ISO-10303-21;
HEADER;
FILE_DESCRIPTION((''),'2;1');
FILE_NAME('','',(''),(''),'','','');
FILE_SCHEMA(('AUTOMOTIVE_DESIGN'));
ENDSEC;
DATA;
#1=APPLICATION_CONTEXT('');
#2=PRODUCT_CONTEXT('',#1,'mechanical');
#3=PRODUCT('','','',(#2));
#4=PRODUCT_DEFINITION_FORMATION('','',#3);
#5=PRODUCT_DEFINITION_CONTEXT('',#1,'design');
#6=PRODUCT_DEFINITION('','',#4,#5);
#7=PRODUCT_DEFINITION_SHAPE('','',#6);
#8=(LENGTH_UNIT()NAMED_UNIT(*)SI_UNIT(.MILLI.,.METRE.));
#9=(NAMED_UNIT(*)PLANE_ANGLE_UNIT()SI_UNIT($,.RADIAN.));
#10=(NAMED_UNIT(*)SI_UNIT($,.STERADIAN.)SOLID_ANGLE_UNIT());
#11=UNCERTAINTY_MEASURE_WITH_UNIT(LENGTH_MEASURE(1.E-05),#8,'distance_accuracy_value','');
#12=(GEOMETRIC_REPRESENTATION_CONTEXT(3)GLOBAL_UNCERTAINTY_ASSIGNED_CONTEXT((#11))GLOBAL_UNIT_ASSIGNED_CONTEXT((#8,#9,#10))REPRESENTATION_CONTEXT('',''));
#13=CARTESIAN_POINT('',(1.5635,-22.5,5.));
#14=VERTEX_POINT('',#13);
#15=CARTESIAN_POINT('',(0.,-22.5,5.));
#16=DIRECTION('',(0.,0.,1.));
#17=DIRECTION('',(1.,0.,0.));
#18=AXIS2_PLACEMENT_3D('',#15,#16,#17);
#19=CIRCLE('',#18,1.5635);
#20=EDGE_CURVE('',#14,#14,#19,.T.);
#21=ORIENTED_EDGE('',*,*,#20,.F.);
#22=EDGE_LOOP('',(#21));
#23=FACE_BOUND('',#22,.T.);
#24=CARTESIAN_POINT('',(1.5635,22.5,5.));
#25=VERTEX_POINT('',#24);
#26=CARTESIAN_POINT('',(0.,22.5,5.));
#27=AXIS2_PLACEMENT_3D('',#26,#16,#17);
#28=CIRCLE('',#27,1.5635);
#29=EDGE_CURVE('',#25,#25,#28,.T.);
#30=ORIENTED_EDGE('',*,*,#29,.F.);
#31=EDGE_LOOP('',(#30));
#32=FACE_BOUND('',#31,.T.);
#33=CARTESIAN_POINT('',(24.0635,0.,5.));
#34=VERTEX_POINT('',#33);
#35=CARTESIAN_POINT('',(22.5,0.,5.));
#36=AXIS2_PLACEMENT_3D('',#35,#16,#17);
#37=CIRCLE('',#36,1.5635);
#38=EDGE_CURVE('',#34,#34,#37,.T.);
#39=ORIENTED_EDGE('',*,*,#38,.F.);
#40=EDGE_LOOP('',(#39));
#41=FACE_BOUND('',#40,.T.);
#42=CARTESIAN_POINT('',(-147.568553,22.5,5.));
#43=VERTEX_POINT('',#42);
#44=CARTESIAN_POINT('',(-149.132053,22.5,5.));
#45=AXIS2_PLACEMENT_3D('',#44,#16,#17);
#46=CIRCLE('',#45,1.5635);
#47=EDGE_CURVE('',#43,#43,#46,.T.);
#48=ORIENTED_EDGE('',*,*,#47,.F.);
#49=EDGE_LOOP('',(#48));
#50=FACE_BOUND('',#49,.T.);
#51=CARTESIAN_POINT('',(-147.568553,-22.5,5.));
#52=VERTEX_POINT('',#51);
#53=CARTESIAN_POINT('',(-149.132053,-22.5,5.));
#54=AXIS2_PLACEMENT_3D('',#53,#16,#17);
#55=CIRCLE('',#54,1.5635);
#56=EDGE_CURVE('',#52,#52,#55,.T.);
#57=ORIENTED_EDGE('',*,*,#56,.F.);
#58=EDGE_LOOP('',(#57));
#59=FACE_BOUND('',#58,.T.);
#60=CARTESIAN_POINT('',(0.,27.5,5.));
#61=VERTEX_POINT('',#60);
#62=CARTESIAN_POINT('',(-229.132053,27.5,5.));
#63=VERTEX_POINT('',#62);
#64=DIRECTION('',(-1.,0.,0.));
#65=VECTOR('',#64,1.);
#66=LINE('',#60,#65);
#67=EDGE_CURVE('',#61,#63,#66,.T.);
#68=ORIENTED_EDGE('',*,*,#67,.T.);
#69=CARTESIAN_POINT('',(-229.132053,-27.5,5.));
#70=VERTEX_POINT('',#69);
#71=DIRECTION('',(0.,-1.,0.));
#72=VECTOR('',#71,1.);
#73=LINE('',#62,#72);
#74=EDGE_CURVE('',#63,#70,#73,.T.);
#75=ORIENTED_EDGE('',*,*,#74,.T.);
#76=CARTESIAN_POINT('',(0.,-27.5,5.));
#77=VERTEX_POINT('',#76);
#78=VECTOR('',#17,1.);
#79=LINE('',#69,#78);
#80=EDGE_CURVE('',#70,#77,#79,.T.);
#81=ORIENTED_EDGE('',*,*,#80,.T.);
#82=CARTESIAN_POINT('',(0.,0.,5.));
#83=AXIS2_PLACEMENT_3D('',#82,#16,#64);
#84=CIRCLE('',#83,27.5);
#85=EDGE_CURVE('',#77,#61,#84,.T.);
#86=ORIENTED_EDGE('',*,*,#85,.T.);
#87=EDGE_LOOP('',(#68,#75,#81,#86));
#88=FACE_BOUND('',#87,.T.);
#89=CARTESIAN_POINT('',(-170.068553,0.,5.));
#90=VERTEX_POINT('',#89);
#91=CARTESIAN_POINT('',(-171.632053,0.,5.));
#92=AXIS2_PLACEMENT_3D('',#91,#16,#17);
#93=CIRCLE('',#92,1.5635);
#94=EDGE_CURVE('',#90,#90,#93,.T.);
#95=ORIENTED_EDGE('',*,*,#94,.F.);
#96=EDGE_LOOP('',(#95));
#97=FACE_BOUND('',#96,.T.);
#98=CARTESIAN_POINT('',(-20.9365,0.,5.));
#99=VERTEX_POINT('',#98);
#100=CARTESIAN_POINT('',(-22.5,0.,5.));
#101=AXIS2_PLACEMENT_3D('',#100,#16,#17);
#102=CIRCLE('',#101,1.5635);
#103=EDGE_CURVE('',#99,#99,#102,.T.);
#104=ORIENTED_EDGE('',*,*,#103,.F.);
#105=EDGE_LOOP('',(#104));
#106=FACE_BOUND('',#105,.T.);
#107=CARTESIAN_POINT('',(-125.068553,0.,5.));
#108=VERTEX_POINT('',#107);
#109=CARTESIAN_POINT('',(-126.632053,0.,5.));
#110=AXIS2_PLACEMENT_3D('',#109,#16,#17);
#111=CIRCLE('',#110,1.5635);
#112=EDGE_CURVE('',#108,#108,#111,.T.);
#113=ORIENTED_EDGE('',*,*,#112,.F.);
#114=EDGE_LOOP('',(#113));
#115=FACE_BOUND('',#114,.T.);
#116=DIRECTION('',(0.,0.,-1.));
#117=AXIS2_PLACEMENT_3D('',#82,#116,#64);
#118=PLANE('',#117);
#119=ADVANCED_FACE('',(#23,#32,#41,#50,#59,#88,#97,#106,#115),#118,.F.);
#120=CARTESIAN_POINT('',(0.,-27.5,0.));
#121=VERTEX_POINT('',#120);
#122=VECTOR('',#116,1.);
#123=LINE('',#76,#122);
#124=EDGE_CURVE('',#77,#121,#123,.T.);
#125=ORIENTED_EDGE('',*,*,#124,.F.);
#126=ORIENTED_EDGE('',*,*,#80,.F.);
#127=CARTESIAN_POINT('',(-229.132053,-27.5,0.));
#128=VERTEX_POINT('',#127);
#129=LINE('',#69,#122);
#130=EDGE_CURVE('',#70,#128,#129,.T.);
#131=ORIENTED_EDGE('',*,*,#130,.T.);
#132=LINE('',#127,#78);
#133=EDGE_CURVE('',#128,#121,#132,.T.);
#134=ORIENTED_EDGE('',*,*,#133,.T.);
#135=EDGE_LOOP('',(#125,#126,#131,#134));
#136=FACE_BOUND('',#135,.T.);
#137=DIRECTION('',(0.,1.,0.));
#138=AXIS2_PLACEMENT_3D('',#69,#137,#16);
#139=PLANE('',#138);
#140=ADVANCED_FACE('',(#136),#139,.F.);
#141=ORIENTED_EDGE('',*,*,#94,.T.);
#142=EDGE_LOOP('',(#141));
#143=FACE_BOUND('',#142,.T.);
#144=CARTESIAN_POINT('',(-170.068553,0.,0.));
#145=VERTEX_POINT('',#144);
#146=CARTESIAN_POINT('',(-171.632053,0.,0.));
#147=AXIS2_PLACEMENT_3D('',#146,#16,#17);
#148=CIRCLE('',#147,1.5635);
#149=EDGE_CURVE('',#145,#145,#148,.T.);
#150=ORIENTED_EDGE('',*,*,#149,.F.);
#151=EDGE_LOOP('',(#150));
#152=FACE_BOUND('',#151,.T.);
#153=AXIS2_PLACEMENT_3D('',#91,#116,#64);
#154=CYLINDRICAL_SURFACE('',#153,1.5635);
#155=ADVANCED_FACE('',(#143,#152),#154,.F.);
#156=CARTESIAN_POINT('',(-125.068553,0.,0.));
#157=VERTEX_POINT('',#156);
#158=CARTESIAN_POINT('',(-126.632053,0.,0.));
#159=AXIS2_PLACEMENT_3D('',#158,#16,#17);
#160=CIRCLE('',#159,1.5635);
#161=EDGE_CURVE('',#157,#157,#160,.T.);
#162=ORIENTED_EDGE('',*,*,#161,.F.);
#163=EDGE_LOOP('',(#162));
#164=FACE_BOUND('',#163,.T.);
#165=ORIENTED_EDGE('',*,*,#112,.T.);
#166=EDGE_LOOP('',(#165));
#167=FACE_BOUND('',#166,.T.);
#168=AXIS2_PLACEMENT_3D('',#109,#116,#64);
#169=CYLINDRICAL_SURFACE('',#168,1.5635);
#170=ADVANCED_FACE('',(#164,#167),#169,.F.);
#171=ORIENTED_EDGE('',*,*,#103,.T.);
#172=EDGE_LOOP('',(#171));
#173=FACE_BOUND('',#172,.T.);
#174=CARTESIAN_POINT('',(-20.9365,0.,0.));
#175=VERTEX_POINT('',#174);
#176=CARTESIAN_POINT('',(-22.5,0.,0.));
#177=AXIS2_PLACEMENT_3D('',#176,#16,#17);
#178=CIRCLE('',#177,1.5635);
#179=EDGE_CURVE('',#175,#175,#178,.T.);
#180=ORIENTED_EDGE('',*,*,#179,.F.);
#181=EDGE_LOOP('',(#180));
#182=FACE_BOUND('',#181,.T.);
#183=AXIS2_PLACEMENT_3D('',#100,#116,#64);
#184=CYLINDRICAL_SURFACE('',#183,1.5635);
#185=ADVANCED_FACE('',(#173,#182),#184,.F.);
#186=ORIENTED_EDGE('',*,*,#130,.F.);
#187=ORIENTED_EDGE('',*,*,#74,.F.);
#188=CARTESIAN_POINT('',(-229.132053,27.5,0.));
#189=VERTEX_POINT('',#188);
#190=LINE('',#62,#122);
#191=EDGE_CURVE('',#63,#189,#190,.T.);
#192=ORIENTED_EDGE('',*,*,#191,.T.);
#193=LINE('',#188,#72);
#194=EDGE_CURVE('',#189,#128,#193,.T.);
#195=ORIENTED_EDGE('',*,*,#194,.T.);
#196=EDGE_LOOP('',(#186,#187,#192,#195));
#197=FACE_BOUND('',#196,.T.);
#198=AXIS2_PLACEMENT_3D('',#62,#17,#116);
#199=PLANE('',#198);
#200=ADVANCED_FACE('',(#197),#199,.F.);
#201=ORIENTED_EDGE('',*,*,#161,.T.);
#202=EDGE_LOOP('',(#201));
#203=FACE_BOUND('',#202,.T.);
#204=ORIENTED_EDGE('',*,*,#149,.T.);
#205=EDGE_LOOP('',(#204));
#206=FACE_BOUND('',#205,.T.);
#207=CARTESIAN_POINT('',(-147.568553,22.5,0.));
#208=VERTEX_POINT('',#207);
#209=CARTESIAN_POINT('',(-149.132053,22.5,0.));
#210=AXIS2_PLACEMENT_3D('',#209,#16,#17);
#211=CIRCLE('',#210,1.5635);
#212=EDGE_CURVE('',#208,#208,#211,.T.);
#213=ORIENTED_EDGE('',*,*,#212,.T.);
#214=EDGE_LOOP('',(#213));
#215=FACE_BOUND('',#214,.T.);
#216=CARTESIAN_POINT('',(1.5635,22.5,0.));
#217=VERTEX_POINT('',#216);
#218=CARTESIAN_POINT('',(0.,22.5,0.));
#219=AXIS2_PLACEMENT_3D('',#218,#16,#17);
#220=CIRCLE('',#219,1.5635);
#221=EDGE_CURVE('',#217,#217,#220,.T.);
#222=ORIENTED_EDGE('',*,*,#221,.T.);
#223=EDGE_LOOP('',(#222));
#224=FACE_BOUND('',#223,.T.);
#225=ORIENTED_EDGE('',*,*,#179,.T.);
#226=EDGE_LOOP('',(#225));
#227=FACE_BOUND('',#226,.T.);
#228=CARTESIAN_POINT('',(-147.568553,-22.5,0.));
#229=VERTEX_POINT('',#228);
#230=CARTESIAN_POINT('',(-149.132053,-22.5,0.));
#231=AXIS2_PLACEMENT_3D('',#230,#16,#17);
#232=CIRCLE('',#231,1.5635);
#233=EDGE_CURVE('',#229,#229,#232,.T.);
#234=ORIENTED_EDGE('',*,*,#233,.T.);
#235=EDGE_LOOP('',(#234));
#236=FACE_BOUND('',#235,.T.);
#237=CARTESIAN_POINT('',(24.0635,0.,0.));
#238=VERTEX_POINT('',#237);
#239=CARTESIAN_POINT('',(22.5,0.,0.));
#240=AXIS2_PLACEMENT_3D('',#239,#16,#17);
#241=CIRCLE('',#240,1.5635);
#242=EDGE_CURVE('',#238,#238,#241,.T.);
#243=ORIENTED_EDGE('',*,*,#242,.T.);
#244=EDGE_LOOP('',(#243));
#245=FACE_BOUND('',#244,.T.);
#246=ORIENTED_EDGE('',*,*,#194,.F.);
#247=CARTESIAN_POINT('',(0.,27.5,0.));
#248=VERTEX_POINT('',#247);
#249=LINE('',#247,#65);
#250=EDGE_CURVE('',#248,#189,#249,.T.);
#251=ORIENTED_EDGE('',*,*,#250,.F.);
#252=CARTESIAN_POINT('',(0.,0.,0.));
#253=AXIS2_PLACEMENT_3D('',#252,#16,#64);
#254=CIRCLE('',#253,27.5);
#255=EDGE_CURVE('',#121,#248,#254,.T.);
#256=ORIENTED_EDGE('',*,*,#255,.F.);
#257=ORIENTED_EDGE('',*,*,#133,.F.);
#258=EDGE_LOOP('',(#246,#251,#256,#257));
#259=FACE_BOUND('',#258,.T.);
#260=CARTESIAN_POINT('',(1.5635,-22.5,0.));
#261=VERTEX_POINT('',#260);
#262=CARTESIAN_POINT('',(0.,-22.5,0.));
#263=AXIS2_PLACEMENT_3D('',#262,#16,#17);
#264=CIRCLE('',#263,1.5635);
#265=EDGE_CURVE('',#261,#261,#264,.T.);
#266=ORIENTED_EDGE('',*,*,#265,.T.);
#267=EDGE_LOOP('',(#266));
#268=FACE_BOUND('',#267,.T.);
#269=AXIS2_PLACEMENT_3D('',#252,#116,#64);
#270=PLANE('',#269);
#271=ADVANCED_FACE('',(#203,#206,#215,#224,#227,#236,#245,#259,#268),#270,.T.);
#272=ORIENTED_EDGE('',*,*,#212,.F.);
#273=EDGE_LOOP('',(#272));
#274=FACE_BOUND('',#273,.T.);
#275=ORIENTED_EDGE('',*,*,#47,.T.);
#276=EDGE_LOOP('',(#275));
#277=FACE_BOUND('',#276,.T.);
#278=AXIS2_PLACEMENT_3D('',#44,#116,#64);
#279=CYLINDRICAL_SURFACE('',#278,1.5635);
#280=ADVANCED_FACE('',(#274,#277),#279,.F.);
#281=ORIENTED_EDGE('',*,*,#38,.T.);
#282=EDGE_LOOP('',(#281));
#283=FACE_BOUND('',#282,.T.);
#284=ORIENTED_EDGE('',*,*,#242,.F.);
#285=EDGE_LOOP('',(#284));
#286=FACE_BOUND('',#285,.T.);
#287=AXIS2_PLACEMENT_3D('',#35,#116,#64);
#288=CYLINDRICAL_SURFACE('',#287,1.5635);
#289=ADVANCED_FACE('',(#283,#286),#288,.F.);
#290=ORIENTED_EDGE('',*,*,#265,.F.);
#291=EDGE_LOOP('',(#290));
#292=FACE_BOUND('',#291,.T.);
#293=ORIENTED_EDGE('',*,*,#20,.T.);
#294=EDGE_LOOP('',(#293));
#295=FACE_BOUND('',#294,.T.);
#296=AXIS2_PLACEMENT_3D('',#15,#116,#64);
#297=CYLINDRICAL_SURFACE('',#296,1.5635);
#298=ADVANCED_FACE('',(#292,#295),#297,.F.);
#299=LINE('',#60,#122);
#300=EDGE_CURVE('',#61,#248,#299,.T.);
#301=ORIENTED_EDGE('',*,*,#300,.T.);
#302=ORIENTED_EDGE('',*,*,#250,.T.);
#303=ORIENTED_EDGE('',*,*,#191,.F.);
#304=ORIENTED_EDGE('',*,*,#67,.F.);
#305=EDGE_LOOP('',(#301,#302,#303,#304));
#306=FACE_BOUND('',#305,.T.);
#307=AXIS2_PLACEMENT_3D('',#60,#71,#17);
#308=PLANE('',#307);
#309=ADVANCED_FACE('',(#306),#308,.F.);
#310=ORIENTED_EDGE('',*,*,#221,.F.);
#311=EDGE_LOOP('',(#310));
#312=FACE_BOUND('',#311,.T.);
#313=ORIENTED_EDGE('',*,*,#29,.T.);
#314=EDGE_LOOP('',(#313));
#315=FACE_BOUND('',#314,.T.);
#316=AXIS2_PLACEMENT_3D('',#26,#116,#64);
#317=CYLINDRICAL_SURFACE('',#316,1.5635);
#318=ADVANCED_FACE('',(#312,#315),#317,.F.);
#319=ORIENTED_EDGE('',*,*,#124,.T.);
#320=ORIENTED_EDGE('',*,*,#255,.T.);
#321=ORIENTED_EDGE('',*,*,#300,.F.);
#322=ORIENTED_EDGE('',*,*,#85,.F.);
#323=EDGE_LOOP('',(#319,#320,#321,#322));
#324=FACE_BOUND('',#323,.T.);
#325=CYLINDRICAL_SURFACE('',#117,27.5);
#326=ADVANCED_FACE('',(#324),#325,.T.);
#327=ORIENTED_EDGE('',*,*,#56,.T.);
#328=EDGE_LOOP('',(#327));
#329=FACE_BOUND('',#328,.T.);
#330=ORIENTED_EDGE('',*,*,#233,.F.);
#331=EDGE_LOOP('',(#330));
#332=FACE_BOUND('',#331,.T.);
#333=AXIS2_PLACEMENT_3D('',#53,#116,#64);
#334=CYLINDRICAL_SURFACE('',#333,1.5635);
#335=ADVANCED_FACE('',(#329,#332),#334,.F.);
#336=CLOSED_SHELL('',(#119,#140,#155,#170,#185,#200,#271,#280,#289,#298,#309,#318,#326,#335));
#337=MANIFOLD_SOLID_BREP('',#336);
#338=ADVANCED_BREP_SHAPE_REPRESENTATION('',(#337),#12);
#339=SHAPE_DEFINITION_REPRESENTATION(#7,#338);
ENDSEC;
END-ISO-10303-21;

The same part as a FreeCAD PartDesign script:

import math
import FreeCAD as App
import Part
import Sketcher

V = App.Vector

doc = App.newDocument("Part")
body = doc.addObject("PartDesign::Body", "Body")

sketch1 = doc.addObject("Sketcher::SketchObject", "Sketch")
body.addObject(sketch1)
sketch1.AttachmentSupport = (doc.XY_Plane, [""])
sketch1.MapMode = "FlatFace"
sketch1.addGeometry([
    Part.LineSegment(V(0, 27.5, 0), V(-229.132053, 27.5, 0)),
    Part.LineSegment(V(-229.132053, 27.5, 0), V(-229.132053, -27.5, 0)),
    Part.LineSegment(V(-229.132053, -27.5, 0), V(0, -27.5, 0)),
    Part.ArcOfCircle(Part.Circle(V(0, 0, 0), V(0, 0, 1), 27.5), math.radians(-90), math.radians(90)),
    Part.Circle(V(-149.132053, -22.5, 0), V(0, 0, 1), 1.5635),
    Part.Circle(V(0, -22.5, 0), V(0, 0, 1), 1.5635),
    Part.Circle(V(-171.632053, 0, 0), V(0, 0, 1), 1.5635),
    Part.Circle(V(-126.632053, 0, 0), V(0, 0, 1), 1.5635),
    Part.Circle(V(-149.132053, 22.5, 0), V(0, 0, 1), 1.5635),
    Part.Circle(V(-22.5, 0, 0), V(0, 0, 1), 1.5635),
    Part.Circle(V(22.5, 0, 0), V(0, 0, 1), 1.5635),
    Part.Circle(V(0, 22.5, 0), V(0, 0, 1), 1.5635),
], False)
sketch1.addConstraint([
    Sketcher.Constraint("Coincident", 0, 2, 1, 1),
    Sketcher.Constraint("Coincident", 1, 2, 2, 1),
    Sketcher.Constraint("Tangent", 2, 2, 3, 1),
    Sketcher.Constraint("Tangent", 3, 2, 0, 1),
    Sketcher.Constraint("Horizontal", 0),
    Sketcher.Constraint("Vertical", 1),
    Sketcher.Constraint("Horizontal", 2),
    Sketcher.Constraint("Coincident", 3, 3, -1, 1),
    Sketcher.Constraint("Equal", 4, 5),
    Sketcher.Constraint("Equal", 5, 6),
    Sketcher.Constraint("Equal", 6, 7),
    Sketcher.Constraint("Equal", 7, 8),
    Sketcher.Constraint("Equal", 8, 9),
    Sketcher.Constraint("Equal", 9, 10),
    Sketcher.Constraint("Equal", 10, 11),
    Sketcher.Constraint("Symmetric", 9, 3, 10, 3, -1, 1),
    Sketcher.Constraint("Symmetric", 5, 3, 11, 3, -1, 1),
    Sketcher.Constraint("Symmetric", 4, 3, 8, 3, -1),
    Sketcher.Constraint("PointOnObject", 5, 3, -2),
    Sketcher.Constraint("PointOnObject", 6, 3, -1),
    Sketcher.Constraint("PointOnObject", 7, 3, -1),
    Sketcher.Constraint("PointOnObject", 9, 3, -1),
    Sketcher.Constraint("Horizontal", 4, 3, 5, 3),
    Sketcher.Constraint("Radius", 3, 27.5),
    Sketcher.Constraint("Diameter", 4, 3.127),
    Sketcher.Constraint("DistanceX", 6, 3, 7, 3, 45.0),
    Sketcher.Constraint("DistanceY", 4, 3, 8, 3, 45.0),
    Sketcher.Constraint("DistanceX", 9, 3, 10, 3, 45.0),
    Sketcher.Constraint("DistanceX", 0, 2, 8, 3, 80.0),
    Sketcher.Constraint("DistanceX", 6, 3, 4, 3, 22.5),
    Sketcher.Constraint("DistanceX", 0, 2, 0, 1, 229.132053),
])
pad1 = doc.addObject("PartDesign::Pad", "Pad")
body.addObject(pad1)
pad1.Profile = sketch1
pad1.Length = 5

doc.recompute()
